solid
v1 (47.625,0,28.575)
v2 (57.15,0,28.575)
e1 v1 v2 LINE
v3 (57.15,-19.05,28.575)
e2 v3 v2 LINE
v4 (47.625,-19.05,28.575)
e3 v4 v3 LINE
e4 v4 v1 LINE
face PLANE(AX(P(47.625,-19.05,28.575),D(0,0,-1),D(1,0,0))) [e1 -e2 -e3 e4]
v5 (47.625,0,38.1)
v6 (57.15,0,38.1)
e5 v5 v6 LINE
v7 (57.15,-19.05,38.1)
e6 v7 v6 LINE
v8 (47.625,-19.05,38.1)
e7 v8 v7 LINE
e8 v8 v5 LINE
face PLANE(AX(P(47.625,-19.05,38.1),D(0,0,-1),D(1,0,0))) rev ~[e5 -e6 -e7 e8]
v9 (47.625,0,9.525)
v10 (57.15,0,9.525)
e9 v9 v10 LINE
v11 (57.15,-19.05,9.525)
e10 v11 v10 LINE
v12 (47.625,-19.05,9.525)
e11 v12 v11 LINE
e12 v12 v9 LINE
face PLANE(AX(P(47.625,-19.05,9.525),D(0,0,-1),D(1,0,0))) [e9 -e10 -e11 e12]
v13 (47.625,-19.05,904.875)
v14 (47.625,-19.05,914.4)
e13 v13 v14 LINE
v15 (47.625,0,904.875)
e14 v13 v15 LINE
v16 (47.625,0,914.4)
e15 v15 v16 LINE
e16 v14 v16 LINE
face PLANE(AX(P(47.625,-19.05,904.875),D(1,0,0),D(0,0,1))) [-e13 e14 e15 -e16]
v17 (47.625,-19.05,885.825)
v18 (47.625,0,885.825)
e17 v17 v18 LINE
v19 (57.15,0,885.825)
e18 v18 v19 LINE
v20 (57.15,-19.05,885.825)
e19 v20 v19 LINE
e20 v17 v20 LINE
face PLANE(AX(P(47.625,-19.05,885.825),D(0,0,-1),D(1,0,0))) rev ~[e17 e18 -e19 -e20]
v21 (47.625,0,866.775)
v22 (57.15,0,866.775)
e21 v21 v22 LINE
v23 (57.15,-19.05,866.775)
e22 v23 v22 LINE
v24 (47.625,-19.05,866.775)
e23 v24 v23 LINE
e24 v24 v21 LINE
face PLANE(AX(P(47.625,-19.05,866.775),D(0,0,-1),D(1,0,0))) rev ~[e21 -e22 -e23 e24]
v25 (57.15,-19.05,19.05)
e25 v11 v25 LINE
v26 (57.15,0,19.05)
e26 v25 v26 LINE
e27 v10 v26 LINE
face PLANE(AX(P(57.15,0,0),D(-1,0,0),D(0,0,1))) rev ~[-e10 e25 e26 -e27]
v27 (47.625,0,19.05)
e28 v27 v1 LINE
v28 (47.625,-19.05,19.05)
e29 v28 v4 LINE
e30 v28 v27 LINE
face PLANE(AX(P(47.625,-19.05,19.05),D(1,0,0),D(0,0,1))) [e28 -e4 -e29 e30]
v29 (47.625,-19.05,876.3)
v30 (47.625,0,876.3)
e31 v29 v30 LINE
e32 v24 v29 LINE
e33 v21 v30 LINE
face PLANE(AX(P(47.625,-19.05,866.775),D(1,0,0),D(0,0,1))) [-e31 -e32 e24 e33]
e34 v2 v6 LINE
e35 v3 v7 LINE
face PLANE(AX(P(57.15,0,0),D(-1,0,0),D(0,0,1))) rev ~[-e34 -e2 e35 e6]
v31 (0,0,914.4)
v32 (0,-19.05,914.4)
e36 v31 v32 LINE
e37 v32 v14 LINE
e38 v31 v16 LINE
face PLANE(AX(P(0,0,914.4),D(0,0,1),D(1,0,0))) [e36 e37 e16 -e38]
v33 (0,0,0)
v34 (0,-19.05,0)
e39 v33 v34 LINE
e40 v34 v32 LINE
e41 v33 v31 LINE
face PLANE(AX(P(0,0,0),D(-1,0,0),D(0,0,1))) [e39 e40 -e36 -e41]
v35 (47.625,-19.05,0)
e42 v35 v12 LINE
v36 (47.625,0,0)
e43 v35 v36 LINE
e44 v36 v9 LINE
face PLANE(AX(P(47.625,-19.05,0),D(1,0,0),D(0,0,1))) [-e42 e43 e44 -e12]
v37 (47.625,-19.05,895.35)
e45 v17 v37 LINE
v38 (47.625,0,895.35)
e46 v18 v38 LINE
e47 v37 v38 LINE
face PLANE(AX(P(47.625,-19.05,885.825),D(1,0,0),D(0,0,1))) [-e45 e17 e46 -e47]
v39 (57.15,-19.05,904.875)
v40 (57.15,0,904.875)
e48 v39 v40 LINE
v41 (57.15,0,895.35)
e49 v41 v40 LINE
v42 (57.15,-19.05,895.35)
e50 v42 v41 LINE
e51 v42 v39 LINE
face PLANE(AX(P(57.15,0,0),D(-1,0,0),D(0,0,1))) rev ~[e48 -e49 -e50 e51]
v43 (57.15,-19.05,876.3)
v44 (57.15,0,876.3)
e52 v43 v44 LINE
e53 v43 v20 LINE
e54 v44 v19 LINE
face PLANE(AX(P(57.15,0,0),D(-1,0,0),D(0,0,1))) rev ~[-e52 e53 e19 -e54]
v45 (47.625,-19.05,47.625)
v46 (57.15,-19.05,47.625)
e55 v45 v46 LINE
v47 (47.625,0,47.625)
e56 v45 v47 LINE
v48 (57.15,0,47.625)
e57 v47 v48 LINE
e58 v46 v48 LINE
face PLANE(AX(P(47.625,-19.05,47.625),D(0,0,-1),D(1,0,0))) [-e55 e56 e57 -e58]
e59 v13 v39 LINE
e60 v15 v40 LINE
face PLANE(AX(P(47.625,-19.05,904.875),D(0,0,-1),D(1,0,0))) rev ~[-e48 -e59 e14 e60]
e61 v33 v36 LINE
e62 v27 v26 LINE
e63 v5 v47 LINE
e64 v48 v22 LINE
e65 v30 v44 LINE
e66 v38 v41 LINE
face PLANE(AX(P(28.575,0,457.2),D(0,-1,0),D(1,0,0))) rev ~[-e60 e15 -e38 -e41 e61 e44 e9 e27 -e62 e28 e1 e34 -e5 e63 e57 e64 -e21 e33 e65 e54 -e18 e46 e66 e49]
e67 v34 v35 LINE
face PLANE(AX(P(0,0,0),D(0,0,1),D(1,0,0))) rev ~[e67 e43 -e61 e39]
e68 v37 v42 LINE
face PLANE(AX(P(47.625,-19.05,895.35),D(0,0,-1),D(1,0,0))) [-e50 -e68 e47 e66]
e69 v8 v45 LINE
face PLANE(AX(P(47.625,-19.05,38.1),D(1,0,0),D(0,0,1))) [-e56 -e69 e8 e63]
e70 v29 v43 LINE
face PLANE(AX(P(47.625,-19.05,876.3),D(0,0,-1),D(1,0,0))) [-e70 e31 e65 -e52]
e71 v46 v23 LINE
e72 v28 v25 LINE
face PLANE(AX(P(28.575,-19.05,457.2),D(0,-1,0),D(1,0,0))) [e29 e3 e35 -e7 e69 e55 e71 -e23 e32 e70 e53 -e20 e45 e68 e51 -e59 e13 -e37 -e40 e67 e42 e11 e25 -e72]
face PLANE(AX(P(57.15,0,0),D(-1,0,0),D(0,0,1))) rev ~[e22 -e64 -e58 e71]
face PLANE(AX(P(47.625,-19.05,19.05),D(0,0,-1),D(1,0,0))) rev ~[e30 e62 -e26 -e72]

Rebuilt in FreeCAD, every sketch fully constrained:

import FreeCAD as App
import Part
import Sketcher

V = App.Vector
Q = App.Units.Quantity

doc = App.newDocument("Part")
body = doc.addObject("PartDesign::Body", "Body")

sketch1 = doc.addObject("Sketcher::SketchObject", "Sketch")
body.addObject(sketch1)
sketch1.AttachmentSupport = (doc.XZ_Plane, [""])
sketch1.MapMode = "FlatFace"
sketch1.addGeometry([
    Part.LineSegment(V(0, 914, 0), V(0, 0, 0)),
    Part.LineSegment(V(0, 0, 0), V(57, 0, 0)),
    Part.LineSegment(V(57, 0, 0), V(57, 914, 0)),
    Part.LineSegment(V(57, 914, 0), V(0, 914, 0)),
], False)
sketch1.addConstraint([
    Sketcher.Constraint("Coincident", 0, 2, 1, 1),
    Sketcher.Constraint("Coincident", 1, 2, 2, 1),
    Sketcher.Constraint("Coincident", 2, 2, 3, 1),
    Sketcher.Constraint("Coincident", 3, 2, 0, 1),
    Sketcher.Constraint("Vertical", 0),
    Sketcher.Constraint("Horizontal", 1),
    Sketcher.Constraint("Vertical", 2),
    Sketcher.Constraint("Horizontal", 3),
    Sketcher.Constraint("Coincident", 0, 2, -1, 1),
    Sketcher.Constraint("DistanceY", 0, 2, 0, 1, Q("36 in")),
    Sketcher.Constraint("DistanceX", 1, 1, 1, 2, Q("2.25 in")),
])
pad1 = doc.addObject("PartDesign::Pad", "Pad")
body.addObject(pad1)
pad1.Profile = sketch1
pad1.Length = Q("0.75 in")

sketch2 = doc.addObject("Sketcher::SketchObject", "Sketch001")
body.addObject(sketch2)
sketch2.AttachmentSupport = (doc.XZ_Plane, [""])
sketch2.MapMode = "FlatFace"
sketch2.AttachmentOffset = App.Placement(V(0, 0, 0.75 * 25.4), App.Rotation())
sketch2.addGeometry([
    Part.LineSegment(V(48, 914, 0), V(48, 905, 0)),
    Part.LineSegment(V(48, 905, 0), V(57, 905, 0)),
    Part.LineSegment(V(57, 905, 0), V(57, 914, 0)),
    Part.LineSegment(V(57, 914, 0), V(48, 914, 0)),
    Part.LineSegment(V(48, 895, 0), V(48, 886, 0)),
    Part.LineSegment(V(48, 886, 0), V(57, 886, 0)),
    Part.LineSegment(V(57, 886, 0), V(57, 895, 0)),
    Part.LineSegment(V(57, 895, 0), V(48, 895, 0)),
    Part.LineSegment(V(48, 876, 0), V(48, 867, 0)),
    Part.LineSegment(V(48, 867, 0), V(57, 867, 0)),
    Part.LineSegment(V(57, 867, 0), V(57, 876, 0)),
    Part.LineSegment(V(57, 876, 0), V(48, 876, 0)),
    Part.LineSegment(V(48, 48, 0), V(48, 38, 0)),
    Part.LineSegment(V(48, 38, 0), V(57, 38, 0)),
    Part.LineSegment(V(57, 38, 0), V(57, 48, 0)),
    Part.LineSegment(V(57, 48, 0), V(48, 48, 0)),
    Part.LineSegment(V(48, 29, 0), V(48, 19, 0)),
    Part.LineSegment(V(48, 19, 0), V(57, 19, 0)),
    Part.LineSegment(V(57, 19, 0), V(57, 29, 0)),
    Part.LineSegment(V(57, 29, 0), V(48, 29, 0)),
    Part.LineSegment(V(48, 10, 0), V(48, 0, 0)),
    Part.LineSegment(V(48, 0, 0), V(57, 0, 0)),
    Part.LineSegment(V(57, 0, 0), V(57, 10, 0)),
    Part.LineSegment(V(57, 10, 0), V(48, 10, 0)),
], False)
sketch2.addConstraint([
    Sketcher.Constraint("Coincident", 0, 2, 1, 1),
    Sketcher.Constraint("Coincident", 1, 2, 2, 1),
    Sketcher.Constraint("Coincident", 2, 2, 3, 1),
    Sketcher.Constraint("Coincident", 3, 2, 0, 1),
    Sketcher.Constraint("Coincident", 4, 2, 5, 1),
    Sketcher.Constraint("Coincident", 5, 2, 6, 1),
    Sketcher.Constraint("Coincident", 6, 2, 7, 1),
    Sketcher.Constraint("Coincident", 7, 2, 4, 1),
    Sketcher.Constraint("Coincident", 8, 2, 9, 1),
    Sketcher.Constraint("Coincident", 9, 2, 10, 1),
    Sketcher.Constraint("Coincident", 10, 2, 11, 1),
    Sketcher.Constraint("Coincident", 11, 2, 8, 1),
    Sketcher.Constraint("Coincident", 12, 2, 13, 1),
    Sketcher.Constraint("Coincident", 13, 2, 14, 1),
    Sketcher.Constraint("Coincident", 14, 2, 15, 1),
    Sketcher.Constraint("Coincident", 15, 2, 12, 1),
    Sketcher.Constraint("Coincident", 16, 2, 17, 1),
    Sketcher.Constraint("Coincident", 17, 2, 18, 1),
    Sketcher.Constraint("Coincident", 18, 2, 19, 1),
    Sketcher.Constraint("Coincident", 19, 2, 16, 1),
    Sketcher.Constraint("Coincident", 20, 2, 21, 1),
    Sketcher.Constraint("Coincident", 21, 2, 22, 1),
    Sketcher.Constraint("Coincident", 22, 2, 23, 1),
    Sketcher.Constraint("Coincident", 23, 2, 20, 1),
    Sketcher.Constraint("Vertical", 0),
    Sketcher.Constraint("Horizontal", 1),
    Sketcher.Constraint("Vertical", 2),
    Sketcher.Constraint("Horizontal", 3),
    Sketcher.Constraint("Vertical", 4),
    Sketcher.Constraint("Horizontal", 5),
    Sketcher.Constraint("Vertical", 6),
    Sketcher.Constraint("Horizontal", 7),
    Sketcher.Constraint("Vertical", 8),
    Sketcher.Constraint("Horizontal", 9),
    Sketcher.Constraint("Vertical", 10),
    Sketcher.Constraint("Horizontal", 11),
    Sketcher.Constraint("Vertical", 12),
    Sketcher.Constraint("Horizontal", 13),
    Sketcher.Constraint("Vertical", 14),
    Sketcher.Constraint("Horizontal", 15),
    Sketcher.Constraint("Vertical", 16),
    Sketcher.Constraint("Horizontal", 17),
    Sketcher.Constraint("Vertical", 18),
    Sketcher.Constraint("Horizontal", 19),
    Sketcher.Constraint("Vertical", 20),
    Sketcher.Constraint("Horizontal", 21),
    Sketcher.Constraint("Vertical", 22),
    Sketcher.Constraint("Horizontal", 23),
    Sketcher.Constraint("PointOnObject", 20, 2, -1),
    Sketcher.Constraint("Vertical", 3, 2, 4, 2),
    Sketcher.Constraint("Vertical", 2, 2, 5, 2),
    Sketcher.Constraint("Vertical", 7, 2, 8, 2),
    Sketcher.Constraint("Vertical", 6, 2, 9, 2),
    Sketcher.Constraint("Vertical", 11, 2, 12, 2),
    Sketcher.Constraint("Vertical", 10, 2, 13, 2),
    Sketcher.Constraint("Vertical", 15, 2, 16, 2),
    Sketcher.Constraint("Vertical", 14, 2, 17, 2),
    Sketcher.Constraint("Vertical", 19, 2, 20, 2),
    Sketcher.Constraint("Vertical", 18, 2, 21, 2),
    Sketcher.Constraint("Equal", 23, 0),
    Sketcher.Constraint("Equal", 2, 4),
    Sketcher.Constraint("Equal", 6, 8),
    Sketcher.Constraint("Equal", 10, 12),
    Sketcher.Constraint("Equal", 14, 16),
    Sketcher.Constraint("Equal", 18, 20),
    Sketcher.Constraint("DistanceY", -1, 1, 2, 2, Q("36 in")),
    Sketcher.Constraint("DistanceY", 12, 2, 11, 2, Q("33 in")),
    Sketcher.Constraint("DistanceY", -1, 1, 10, 2, Q("34.5 in")),
    Sketcher.Constraint("DistanceX", 1, 1, 1, 2, Q("0.375 in")),
    Sketcher.Constraint("DistanceX", -1, 1, 1, 2, Q("2.25 in")),
    Sketcher.Constraint("DistanceY", -1, 1, 6, 2, Q("35.25 in")),
    Sketcher.Constraint("DistanceY", -1, 1, 16, 2, Q("0.75 in")),
])
pocket1 = doc.addObject("PartDesign::Pocket", "Pocket")
body.addObject(pocket1)
pocket1.Profile = sketch2
pocket1.Type = "ThroughAll"

doc.recompute()
